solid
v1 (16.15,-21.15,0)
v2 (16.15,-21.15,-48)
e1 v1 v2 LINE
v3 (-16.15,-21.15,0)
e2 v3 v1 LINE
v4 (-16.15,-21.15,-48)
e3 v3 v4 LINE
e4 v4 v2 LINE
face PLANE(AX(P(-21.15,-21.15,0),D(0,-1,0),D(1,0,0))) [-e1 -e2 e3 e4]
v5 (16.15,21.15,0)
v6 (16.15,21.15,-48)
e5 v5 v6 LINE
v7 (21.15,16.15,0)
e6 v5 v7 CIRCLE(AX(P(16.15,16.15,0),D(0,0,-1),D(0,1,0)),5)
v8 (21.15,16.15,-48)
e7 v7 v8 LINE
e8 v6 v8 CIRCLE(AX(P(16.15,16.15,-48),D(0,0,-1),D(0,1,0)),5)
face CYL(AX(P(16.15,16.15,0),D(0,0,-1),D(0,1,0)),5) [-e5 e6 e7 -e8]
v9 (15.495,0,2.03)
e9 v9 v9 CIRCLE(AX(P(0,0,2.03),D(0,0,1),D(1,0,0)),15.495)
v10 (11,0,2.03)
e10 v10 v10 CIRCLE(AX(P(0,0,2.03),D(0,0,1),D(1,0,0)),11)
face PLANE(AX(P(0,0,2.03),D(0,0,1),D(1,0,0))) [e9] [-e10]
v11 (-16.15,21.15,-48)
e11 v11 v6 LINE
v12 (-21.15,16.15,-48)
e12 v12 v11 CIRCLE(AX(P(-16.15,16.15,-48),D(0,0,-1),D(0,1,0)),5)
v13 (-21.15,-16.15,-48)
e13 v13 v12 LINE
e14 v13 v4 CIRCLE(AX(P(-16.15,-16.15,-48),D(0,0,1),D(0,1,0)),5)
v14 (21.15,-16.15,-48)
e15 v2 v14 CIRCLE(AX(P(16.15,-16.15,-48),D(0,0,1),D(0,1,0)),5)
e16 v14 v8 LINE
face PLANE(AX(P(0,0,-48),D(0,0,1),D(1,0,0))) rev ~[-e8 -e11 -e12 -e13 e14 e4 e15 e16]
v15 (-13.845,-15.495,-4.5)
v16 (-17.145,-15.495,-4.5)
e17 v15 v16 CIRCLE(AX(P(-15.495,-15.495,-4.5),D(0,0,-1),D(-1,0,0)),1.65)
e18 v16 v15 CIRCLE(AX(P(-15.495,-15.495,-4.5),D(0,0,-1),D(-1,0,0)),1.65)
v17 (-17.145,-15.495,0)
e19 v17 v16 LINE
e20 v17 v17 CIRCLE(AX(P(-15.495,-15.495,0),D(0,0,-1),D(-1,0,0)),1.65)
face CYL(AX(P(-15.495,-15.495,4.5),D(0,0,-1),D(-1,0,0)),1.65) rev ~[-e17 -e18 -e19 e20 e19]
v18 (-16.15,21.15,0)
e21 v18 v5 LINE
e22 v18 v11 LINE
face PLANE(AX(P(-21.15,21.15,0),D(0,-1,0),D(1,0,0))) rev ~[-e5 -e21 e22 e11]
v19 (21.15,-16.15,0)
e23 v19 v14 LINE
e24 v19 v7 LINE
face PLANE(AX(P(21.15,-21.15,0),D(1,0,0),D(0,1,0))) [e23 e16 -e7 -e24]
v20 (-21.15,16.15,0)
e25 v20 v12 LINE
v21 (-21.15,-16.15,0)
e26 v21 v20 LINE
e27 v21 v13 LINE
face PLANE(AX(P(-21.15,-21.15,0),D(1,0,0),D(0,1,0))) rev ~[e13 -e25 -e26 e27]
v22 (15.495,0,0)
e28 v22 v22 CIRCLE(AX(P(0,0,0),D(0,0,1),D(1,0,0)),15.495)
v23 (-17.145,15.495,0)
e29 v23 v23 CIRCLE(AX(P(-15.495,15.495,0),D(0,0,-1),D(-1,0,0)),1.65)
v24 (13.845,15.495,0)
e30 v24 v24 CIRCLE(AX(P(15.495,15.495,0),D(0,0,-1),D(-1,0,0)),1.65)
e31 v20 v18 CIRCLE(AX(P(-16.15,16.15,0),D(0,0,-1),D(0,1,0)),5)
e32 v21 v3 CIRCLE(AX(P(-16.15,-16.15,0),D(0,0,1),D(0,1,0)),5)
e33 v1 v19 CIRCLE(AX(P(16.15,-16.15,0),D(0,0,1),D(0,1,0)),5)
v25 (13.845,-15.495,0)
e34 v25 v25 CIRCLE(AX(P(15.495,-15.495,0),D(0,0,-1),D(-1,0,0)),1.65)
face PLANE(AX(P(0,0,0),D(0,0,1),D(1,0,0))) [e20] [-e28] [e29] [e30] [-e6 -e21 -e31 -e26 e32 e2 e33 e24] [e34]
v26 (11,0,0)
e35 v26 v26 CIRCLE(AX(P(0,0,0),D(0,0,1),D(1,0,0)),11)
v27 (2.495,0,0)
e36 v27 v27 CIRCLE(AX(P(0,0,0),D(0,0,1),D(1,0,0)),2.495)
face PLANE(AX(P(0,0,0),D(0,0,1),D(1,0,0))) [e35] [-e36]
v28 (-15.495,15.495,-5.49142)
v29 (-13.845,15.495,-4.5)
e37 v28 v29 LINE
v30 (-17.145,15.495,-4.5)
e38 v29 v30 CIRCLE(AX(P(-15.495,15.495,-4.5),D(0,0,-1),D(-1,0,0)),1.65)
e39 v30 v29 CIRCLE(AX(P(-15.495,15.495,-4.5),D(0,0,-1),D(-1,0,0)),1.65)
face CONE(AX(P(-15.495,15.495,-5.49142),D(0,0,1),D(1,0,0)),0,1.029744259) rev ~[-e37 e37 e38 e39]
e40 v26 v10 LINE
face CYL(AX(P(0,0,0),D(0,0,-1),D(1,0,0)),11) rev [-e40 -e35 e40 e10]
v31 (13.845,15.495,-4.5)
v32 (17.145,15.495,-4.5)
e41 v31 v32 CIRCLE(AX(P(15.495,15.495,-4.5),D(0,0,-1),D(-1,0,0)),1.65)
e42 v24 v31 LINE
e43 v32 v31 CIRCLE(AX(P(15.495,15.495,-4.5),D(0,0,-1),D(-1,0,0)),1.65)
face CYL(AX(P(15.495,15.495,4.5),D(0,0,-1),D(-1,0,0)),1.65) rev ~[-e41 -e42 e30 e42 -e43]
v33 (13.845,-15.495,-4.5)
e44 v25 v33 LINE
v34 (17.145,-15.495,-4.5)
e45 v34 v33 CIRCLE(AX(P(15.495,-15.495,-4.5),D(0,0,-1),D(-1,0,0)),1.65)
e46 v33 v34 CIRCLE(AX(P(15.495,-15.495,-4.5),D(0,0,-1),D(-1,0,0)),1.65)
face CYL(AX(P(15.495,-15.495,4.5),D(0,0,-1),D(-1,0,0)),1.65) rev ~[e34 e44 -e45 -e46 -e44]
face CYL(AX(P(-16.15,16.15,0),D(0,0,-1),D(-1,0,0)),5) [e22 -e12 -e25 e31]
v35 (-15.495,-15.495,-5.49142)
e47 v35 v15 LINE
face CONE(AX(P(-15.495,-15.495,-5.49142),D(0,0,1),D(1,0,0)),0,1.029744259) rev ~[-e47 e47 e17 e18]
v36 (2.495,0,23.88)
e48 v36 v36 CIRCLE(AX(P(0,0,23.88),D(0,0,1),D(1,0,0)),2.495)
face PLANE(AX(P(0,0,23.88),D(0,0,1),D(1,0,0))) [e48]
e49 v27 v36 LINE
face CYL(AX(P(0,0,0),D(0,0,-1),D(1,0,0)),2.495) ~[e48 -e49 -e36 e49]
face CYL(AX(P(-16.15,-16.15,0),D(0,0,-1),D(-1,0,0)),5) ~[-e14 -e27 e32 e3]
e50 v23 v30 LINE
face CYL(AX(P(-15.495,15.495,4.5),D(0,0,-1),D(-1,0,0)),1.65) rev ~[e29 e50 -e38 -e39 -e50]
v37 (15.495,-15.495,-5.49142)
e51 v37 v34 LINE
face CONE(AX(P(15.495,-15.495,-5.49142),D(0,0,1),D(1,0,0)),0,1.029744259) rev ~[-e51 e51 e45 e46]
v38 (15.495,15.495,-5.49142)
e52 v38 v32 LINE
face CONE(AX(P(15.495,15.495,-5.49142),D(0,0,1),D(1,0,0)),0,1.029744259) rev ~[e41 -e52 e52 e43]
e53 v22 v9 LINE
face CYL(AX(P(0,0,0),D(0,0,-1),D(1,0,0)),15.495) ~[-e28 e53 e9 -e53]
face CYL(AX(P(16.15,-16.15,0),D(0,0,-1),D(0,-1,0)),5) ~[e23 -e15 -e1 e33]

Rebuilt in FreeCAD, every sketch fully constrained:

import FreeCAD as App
import Part
import Sketcher
from FreeCAD import Vector


def edges_at(feature, points):
    """Names of the edges that pass closest to the given points."""
    edges = feature.Shape.Edges
    near = lambda p: min(range(len(edges)), key=lambda i: edges[i].distToShape(Part.Vertex(*p))[0])
    return sorted({f"Edge{near(p) + 1}" for p in points})


def add_polygon(sketch, points):
    """Adds a closed chain of lines whose ends are joined by coincident constraints."""
    first, n = sketch.GeometryCount, len(points)
    for a, b in zip(points, points[1:] + points[:1]):
        sketch.addGeometry(Part.LineSegment(App.Vector(*a, 0), App.Vector(*b, 0)), False)
    for i in range(n):
        sketch.addConstraint(Sketcher.Constraint("Coincident", first + i, 2, first + (i + 1) % n, 1))

doc = App.newDocument("Part")
body = doc.addObject("PartDesign::Body", "Body")

# Sketch on XY plane
sketch1 = body.newObject("Sketcher::SketchObject", "Sketch")
sketch1.AttachmentSupport = (doc.getObject("XY_Plane"), [""])
sketch1.MapMode = "FlatFace"
add_polygon(sketch1, [(-21, 21), (-21, -21), (21, -21), (21, 21)])  # lines 0-3
sketch1.addConstraint([
    Sketcher.Constraint("Vertical", 0),
    Sketcher.Constraint("Horizontal", 1),
    Sketcher.Constraint("Vertical", 2),
    Sketcher.Constraint("Horizontal", 3),
    Sketcher.Constraint("Symmetric", 0, 2, 2, 2, -1, 1),
    Sketcher.Constraint("Equal", 3, 0),
    Sketcher.Constraint("DistanceX", 1, 1, 1, 2, 42.3),
])
pad1 = body.newObject("PartDesign::Pad", "Pad")
pad1.Profile = sketch1
pad1.Length = 48
pad1.Reversed = True

# Sketch on XY plane
sketch2 = body.newObject("Sketcher::SketchObject", "Sketch001")
sketch2.AttachmentSupport = (doc.getObject("XY_Plane"), [""])
sketch2.MapMode = "FlatFace"
sketch2.addGeometry([
    Part.Circle(Vector(-15.5, 15.5, 0), Vector(0, 0, 1), 1.6),
    Part.Circle(Vector(-15.5, -15.5, 0), Vector(0, 0, 1), 1.6),
    Part.Circle(Vector(15.5, -15.5, 0), Vector(0, 0, 1), 1.6),
    Part.Circle(Vector(15.5, 15.5, 0), Vector(0, 0, 1), 1.6),
], False)
sketch2.addConstraint([
    Sketcher.Constraint("Equal", 0, 1),
    Sketcher.Constraint("Equal", 1, 2),
    Sketcher.Constraint("Equal", 2, 3),
    Sketcher.Constraint("Symmetric", 0, 3, 2, 3, -1, 1),
    Sketcher.Constraint("Symmetric", 1, 3, 3, 3, -1, 1),
    Sketcher.Constraint("Symmetric", 1, 3, 2, 3, -2),
    Sketcher.Constraint("Diameter", 0, 3.3),
    Sketcher.Constraint("DistanceY", 1, 3, 0, 3, 30.99),
    Sketcher.Constraint("DistanceX", 1, 3, 2, 3, 30.99),
])
doc.recompute()
hole = body.newObject("PartDesign::Hole", "Hole")
hole.Profile = sketch2
hole.ThreadType = "None"
hole.Diameter = 3.3
hole.DepthType = "Dimension"
hole.Depth = 4.5
hole.DrillPoint = "Angled"
hole.DrillPointAngle = 118
doc.recompute()

fillet = body.newObject("PartDesign::Fillet", "Fillet")
fillet.Base = (hole, edges_at(hole, [
    (-21.15, 21.15, -24),
    (-21.15, -21.15, -24),
    (21.15, -21.15, -24),
    (21.15, 21.15, -24),
]))
fillet.Radius = 5

# Sketch on XY plane
sketch3 = body.newObject("Sketcher::SketchObject", "Sketch002")
sketch3.AttachmentSupport = (doc.getObject("XY_Plane"), [""])
sketch3.MapMode = "FlatFace"
sketch3.addGeometry([
    Part.Circle(Vector(0, 0, 0), Vector(0, 0, 1), 15),
    Part.Circle(Vector(0, 0, 0), Vector(0, 0, 1), 11),
], False)
sketch3.addConstraint([
    Sketcher.Constraint("Coincident", 0, 3, -1, 1),
    Sketcher.Constraint("Coincident", 1, 3, -1, 1),
    Sketcher.Constraint("Diameter", 1, 22.0),
    Sketcher.Constraint("Diameter", 0, 30.99),
])
pad2 = body.newObject("PartDesign::Pad", "Pad001")
pad2.Profile = sketch3
pad2.Length = 2.03

# Sketch on XY plane
sketch4 = body.newObject("Sketcher::SketchObject", "Sketch003")
sketch4.AttachmentSupport = (doc.getObject("XY_Plane"), [""])
sketch4.MapMode = "FlatFace"
sketch4.addGeometry(Part.Circle(Vector(0, 0, 0), Vector(0, 0, 1), 2.5), False)
sketch4.addConstraint([
    Sketcher.Constraint("Coincident", 0, 3, -1, 1),
    Sketcher.Constraint("Diameter", 0, 4.99),
])
pad3 = body.newObject("PartDesign::Pad", "Pad002")
pad3.Profile = sketch4
pad3.Length = 23.88

doc.recompute()
